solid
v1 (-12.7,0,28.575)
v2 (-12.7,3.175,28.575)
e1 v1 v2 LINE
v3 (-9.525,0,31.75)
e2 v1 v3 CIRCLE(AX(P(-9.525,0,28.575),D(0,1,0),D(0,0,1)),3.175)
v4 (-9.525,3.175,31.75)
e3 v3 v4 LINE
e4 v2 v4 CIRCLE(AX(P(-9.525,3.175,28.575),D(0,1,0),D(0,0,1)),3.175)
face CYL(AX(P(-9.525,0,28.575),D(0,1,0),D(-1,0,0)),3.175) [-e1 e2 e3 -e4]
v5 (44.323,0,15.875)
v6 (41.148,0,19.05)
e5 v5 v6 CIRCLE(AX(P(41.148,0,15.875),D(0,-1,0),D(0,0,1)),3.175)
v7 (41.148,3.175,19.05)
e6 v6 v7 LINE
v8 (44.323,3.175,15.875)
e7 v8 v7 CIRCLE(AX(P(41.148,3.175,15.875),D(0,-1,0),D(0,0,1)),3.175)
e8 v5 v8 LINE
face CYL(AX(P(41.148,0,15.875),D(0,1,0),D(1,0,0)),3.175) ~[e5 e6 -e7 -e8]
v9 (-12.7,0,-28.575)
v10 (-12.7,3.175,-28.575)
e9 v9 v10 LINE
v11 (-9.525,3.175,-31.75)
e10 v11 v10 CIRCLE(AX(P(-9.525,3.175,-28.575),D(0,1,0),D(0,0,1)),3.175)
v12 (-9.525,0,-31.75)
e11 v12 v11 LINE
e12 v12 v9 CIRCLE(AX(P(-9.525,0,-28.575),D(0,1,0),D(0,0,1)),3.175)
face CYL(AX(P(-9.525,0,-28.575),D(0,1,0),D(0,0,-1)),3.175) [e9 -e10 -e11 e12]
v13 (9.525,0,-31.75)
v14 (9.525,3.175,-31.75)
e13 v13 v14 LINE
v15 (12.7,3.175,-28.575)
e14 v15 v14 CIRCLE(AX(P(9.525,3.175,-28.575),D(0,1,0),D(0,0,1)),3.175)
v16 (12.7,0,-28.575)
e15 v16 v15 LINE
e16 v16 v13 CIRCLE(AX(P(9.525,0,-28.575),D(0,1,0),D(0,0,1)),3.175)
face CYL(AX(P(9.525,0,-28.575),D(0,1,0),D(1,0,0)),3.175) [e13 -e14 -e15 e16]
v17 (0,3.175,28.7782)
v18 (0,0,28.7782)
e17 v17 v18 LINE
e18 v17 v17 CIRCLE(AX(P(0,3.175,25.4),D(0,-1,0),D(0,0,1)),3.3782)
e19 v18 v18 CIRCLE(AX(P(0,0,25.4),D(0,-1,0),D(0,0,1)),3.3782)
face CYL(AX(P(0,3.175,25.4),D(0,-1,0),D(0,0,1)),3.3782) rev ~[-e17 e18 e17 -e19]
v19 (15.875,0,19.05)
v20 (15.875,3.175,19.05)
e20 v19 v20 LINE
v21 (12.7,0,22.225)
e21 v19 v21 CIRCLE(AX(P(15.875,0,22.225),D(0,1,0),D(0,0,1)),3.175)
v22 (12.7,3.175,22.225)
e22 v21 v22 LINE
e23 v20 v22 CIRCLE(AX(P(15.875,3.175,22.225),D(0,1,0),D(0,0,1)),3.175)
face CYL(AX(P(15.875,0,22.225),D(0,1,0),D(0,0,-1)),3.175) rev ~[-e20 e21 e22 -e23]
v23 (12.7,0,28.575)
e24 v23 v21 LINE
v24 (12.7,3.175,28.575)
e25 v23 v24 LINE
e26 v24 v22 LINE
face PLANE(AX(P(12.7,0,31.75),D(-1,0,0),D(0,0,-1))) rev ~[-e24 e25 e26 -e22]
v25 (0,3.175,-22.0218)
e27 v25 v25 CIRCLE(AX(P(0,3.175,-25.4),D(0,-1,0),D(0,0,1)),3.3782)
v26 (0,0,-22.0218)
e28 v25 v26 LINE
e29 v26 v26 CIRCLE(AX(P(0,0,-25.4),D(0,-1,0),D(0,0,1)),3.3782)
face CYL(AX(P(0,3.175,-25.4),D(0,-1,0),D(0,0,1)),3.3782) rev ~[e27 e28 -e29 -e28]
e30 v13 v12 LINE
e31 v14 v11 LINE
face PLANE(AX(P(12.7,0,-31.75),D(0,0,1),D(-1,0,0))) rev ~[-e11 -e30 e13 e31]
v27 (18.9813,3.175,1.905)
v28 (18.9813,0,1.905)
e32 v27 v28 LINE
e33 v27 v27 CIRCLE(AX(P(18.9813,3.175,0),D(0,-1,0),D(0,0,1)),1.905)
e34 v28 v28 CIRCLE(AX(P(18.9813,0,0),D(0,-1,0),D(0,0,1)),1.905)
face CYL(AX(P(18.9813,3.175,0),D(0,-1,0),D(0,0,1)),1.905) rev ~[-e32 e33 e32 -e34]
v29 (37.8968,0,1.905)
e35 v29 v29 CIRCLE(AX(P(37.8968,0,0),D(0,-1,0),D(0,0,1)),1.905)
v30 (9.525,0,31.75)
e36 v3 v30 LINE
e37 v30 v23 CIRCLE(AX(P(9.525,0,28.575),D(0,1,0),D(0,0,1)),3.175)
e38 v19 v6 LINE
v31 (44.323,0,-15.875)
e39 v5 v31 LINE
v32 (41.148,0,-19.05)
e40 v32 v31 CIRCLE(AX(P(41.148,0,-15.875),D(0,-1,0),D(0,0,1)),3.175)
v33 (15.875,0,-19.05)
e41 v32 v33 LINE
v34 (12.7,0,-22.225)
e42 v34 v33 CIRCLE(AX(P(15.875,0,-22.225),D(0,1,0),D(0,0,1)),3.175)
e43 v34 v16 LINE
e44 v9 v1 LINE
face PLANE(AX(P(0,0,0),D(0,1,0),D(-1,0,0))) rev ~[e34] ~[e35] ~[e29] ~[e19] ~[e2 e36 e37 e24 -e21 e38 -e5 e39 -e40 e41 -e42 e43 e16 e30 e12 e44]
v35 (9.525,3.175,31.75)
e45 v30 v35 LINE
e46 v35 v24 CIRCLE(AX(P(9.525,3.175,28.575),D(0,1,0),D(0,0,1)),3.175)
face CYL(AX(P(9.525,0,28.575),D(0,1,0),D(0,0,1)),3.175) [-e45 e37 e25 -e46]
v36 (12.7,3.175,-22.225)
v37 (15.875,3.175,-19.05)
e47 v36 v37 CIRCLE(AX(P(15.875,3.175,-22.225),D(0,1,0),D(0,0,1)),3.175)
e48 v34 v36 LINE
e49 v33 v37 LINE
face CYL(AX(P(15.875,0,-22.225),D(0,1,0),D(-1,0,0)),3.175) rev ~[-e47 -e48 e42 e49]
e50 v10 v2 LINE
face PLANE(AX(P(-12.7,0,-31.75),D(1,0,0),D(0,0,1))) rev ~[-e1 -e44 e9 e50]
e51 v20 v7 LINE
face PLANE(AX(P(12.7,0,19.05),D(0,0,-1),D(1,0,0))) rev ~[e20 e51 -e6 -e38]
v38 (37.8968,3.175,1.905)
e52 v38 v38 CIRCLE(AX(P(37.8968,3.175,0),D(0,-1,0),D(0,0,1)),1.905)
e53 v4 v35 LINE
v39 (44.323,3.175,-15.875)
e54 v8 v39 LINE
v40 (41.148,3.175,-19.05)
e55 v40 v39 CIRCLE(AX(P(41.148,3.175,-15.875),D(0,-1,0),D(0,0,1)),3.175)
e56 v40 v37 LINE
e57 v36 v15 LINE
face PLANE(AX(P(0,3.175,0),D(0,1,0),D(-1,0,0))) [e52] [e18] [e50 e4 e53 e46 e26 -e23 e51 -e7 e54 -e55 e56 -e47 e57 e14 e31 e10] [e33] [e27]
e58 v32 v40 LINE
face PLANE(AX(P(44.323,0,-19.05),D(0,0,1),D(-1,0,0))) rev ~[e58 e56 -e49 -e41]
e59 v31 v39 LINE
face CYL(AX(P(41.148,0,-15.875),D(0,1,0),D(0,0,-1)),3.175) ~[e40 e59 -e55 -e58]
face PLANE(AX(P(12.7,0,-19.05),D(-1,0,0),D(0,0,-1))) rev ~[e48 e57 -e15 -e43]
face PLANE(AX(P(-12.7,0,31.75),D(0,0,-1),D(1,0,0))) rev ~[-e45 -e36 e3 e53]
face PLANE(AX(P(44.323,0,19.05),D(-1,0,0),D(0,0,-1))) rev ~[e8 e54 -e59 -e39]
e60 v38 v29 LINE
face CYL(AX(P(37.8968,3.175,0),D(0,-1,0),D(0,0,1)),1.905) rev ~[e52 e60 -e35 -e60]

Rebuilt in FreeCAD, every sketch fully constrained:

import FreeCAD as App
import Part
import Sketcher
from FreeCAD import Vector
Q = App.Units.Quantity


def edges_at(feature, points):
    """Names of the edges that pass closest to the given points."""
    edges = feature.Shape.Edges
    near = lambda p: min(range(len(edges)), key=lambda i: edges[i].distToShape(Part.Vertex(*p))[0])
    return sorted({f"Edge{near(p) + 1}" for p in points})

doc = App.newDocument("Part")
params = doc.addObject("Spreadsheet::Sheet", "Params")
for row, (alias, value) in enumerate([
    ("sketch1_width", "1 in"),
    ("sketch1_height", "0.5 in"),
    ("sketch1_height2", "2.5 in"),
    ("sketch1_width2", "1.245 in"),
    ("pad1_length", "0.125 in"),
    ("sketch2_diameter", "0.266 in"),
    ("hole_diameter", "0.266 in"),
    ("sketch3_diameter", "0.15 in"),
    ("hole2_diameter", "0.15 in"),
    ("fillet_radius", "0.125 in"),
], start=1):
    params.set(f"A{row}", alias)
    params.set(f"B{row}", "=" + value)
    params.setAlias(f"B{row}", alias)

body = doc.addObject("PartDesign::Body", "Body")

# Sketch on XZ plane
sketch1 = body.newObject("Sketcher::SketchObject", "Sketch")
sketch1.AttachmentSupport = (doc.getObject("XZ_Plane"), [""])
sketch1.MapMode = "FlatFace"
sketch1.addGeometry(Part.LineSegment(Vector(13, -19, 0), Vector(13, -32, 0)), False)
sketch1.addGeometry(Part.LineSegment(Vector(13, -32, 0), Vector(-13, -32, 0)), False)
sketch1.addGeometry(Part.LineSegment(Vector(-13, -32, 0), Vector(-13, 32, 0)), False)
sketch1.addGeometry(Part.LineSegment(Vector(-13, 32, 0), Vector(13, 32, 0)), False)
sketch1.addGeometry(Part.LineSegment(Vector(13, 32, 0), Vector(13, 19, 0)), False)
sketch1.addGeometry(Part.LineSegment(Vector(13, 19, 0), Vector(44, 19, 0)), False)
sketch1.addGeometry(Part.LineSegment(Vector(44, 19, 0), Vector(44, -19, 0)), False)
sketch1.addGeometry(Part.LineSegment(Vector(44, -19, 0), Vector(13, -19, 0)), False)
sketch1.addConstraint(Sketcher.Constraint("Coincident", 0, 2, 1, 1))
sketch1.addConstraint(Sketcher.Constraint("Coincident", 1, 2, 2, 1))
sketch1.addConstraint(Sketcher.Constraint("Coincident", 2, 2, 3, 1))
sketch1.addConstraint(Sketcher.Constraint("Coincident", 3, 2, 4, 1))
sketch1.addConstraint(Sketcher.Constraint("Coincident", 4, 2, 5, 1))
sketch1.addConstraint(Sketcher.Constraint("Coincident", 5, 2, 6, 1))
sketch1.addConstraint(Sketcher.Constraint("Coincident", 6, 2, 7, 1))
sketch1.addConstraint(Sketcher.Constraint("Coincident", 7, 2, 0, 1))
sketch1.addConstraint(Sketcher.Constraint("Vertical", 0))
sketch1.addConstraint(Sketcher.Constraint("Horizontal", 1))
sketch1.addConstraint(Sketcher.Constraint("Vertical", 2))
sketch1.addConstraint(Sketcher.Constraint("Horizontal", 3))
sketch1.addConstraint(Sketcher.Constraint("Vertical", 4))
sketch1.addConstraint(Sketcher.Constraint("Horizontal", 5))
sketch1.addConstraint(Sketcher.Constraint("Vertical", 6))
sketch1.addConstraint(Sketcher.Constraint("Horizontal", 7))
sketch1.addConstraint(Sketcher.Constraint("Symmetric", 0, 2, 2, 2, -1, 1))
sketch1.addConstraint(Sketcher.Constraint("Symmetric", 4, 2, 7, 2, -1))
sketch1.addConstraint(Sketcher.Constraint("DistanceX", 1, 2, 1, 1, Q("1 in")))
sketch1.addConstraint(Sketcher.Constraint("DistanceY", 0, 2, 0, 1, Q("0.5 in")))
sketch1.addConstraint(Sketcher.Constraint("DistanceY", 2, 1, 2, 2, Q("2.5 in")))
sketch1.addConstraint(Sketcher.Constraint("DistanceX", 5, 1, 5, 2, Q("1.245 in")))
sketch1.setExpression("Constraints[18]", "Params.sketch1_width")
sketch1.setExpression("Constraints[19]", "Params.sketch1_height")
sketch1.setExpression("Constraints[20]", "Params.sketch1_height2")
sketch1.setExpression("Constraints[21]", "Params.sketch1_width2")
pad1 = body.newObject("PartDesign::Pad", "Pad")
pad1.Profile = sketch1
pad1.setExpression("Length", "Params.pad1_length")
pad1.Reversed = True

# Sketch on XZ plane
sketch2 = body.newObject("Sketcher::SketchObject", "Sketch001")
sketch2.AttachmentSupport = (doc.getObject("XZ_Plane"), [""])
sketch2.MapMode = "FlatFace"
sketch2.AttachmentOffset = App.Placement(Vector(0, 0, -0.125 * 25.4), App.Rotation())
sketch2.addGeometry(Part.Circle(Vector(0, 25.4, 0), Vector(0, 0, 1), 3.4), False)
sketch2.addGeometry(Part.Circle(Vector(0, -25.4, 0), Vector(0, 0, 1), 3.4), False)
sketch2.addConstraint(Sketcher.Constraint("Equal", 0, 1))
sketch2.addConstraint(Sketcher.Constraint("Symmetric", 0, 3, 1, 3, -1, 1))
sketch2.addConstraint(Sketcher.Constraint("PointOnObject", 0, 3, -2))
sketch2.addConstraint(Sketcher.Constraint("Diameter", 0, Q("0.266 in")))
sketch2.addConstraint(Sketcher.Constraint("DistanceY", -1, 1, 0, 3, Q("1 in")))
sketch2.setExpression("Constraints[3]", "Params.sketch2_diameter")
doc.recompute()
hole = body.newObject("PartDesign::Hole", "Hole")
hole.Profile = sketch2
hole.ThreadType = "None"
hole.setExpression("Diameter", "Params.hole_diameter")
hole.DepthType = "ThroughAll"
hole.Reversed = True

# Sketch on XZ plane
sketch3 = body.newObject("Sketcher::SketchObject", "Sketch002")
sketch3.AttachmentSupport = (doc.getObject("XZ_Plane"), [""])
sketch3.MapMode = "FlatFace"
sketch3.AttachmentOffset = App.Placement(Vector(0, 0, -0.125 * 25.4), App.Rotation())
sketch3.addGeometry(Part.Circle(Vector(19, 0, 0), Vector(0, 0, 1), 1.9), False)
sketch3.addGeometry(Part.Circle(Vector(37.9, 0, 0), Vector(0, 0, 1), 1.9), False)
sketch3.addConstraint(Sketcher.Constraint("Equal", 0, 1))
sketch3.addConstraint(Sketcher.Constraint("PointOnObject", 0, 3, -1))
sketch3.addConstraint(Sketcher.Constraint("PointOnObject", 1, 3, -1))
sketch3.addConstraint(Sketcher.Constraint("Diameter", 0, Q("0.15 in")))
sketch3.addConstraint(Sketcher.Constraint("DistanceX", -1, 1, 1, 3, Q("1.492 in")))
sketch3.addConstraint(Sketcher.Constraint("DistanceX", -1, 1, 0, 3, Q("0.7473 in")))
sketch3.setExpression("Constraints[3]", "Params.sketch3_diameter")
doc.recompute()
hole2 = body.newObject("PartDesign::Hole", "Hole001")
hole2.Profile = sketch3
hole2.ThreadType = "None"
hole2.setExpression("Diameter", "Params.hole2_diameter")
hole2.DepthType = "ThroughAll"
hole2.Reversed = True
doc.recompute()

fillet = body.newObject("PartDesign::Fillet", "Fillet")
fillet.Base = (hole2, edges_at(hole2, [
    (12.7, 1.587, 19.05),
    (12.7, 1.587, 31.75),
    (-12.7, 1.587, 31.75),
    (-12.7, 1.587, -31.75),
    (12.7, 1.587, -31.75),
    (12.7, 1.587, -19.05),
    (44.323, 1.587, -19.05),
    (44.323, 1.587, 19.05),
]))
fillet.setExpression("Radius", "Params.fillet_radius")

doc.recompute()
